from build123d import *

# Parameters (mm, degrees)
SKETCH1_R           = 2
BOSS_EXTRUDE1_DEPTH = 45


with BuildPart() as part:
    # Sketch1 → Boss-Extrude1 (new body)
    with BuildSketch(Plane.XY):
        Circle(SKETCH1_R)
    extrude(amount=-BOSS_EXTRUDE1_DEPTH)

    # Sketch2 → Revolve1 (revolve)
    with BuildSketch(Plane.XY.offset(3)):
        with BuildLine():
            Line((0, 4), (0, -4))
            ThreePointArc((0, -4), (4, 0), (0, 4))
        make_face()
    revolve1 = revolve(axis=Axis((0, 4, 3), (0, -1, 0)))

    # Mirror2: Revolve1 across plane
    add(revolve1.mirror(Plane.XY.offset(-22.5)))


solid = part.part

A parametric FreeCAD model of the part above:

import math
import FreeCAD as App
import Part
import Sketcher

V = App.Vector

doc = App.newDocument("Part")
body = doc.addObject("PartDesign::Body", "Body")

sketch1 = body.newObject("Sketcher::SketchObject", "Sketch")
sketch1.AttachmentSupport = (doc.getObject("XY_Plane"), [""])
sketch1.MapMode = "FlatFace"
sketch1.addGeometry(Part.Circle(V(0, 0, 0), V(0, 0, 1), 2), False)
sketch1.addConstraint([
    Sketcher.Constraint("Coincident", 0, 3, -1, 1),
    Sketcher.Constraint("Diameter", 0, 4.0),
])
pad1 = body.newObject("PartDesign::Pad", "Pad")
pad1.Profile = sketch1
pad1.Length = 45
pad1.Reversed = True

sketch2 = body.newObject("Sketcher::SketchObject", "Sketch001")
sketch2.AttachmentSupport = (doc.getObject("XY_Plane"), [""])
sketch2.MapMode = "FlatFace"
sketch2.AttachmentOffset = App.Placement(V(0, 0, 3), App.Rotation())
sketch2.addGeometry([
    Part.LineSegment(V(0, 4, 0), V(0, -4, 0)),
    Part.ArcOfCircle(Part.Circle(V(0, 0, 0), V(0, 0, 1), 4), math.radians(-90), math.radians(90)),
], False)
sketch2.addConstraint([
    Sketcher.Constraint("Coincident", 0, 1, 1, 2),
    Sketcher.Constraint("Coincident", 1, 1, 0, 2),
    Sketcher.Constraint("Vertical", 0),
    Sketcher.Constraint("Coincident", 1, 3, -1, 1),
    Sketcher.Constraint("PointOnObject", 0, 1, -2),
    Sketcher.Constraint("Radius", 1, 4.0),
])
revolution = body.newObject("PartDesign::Revolution", "Revolution")
revolution.Profile = sketch2
revolution.ReferenceAxis = (sketch2, ["V_Axis"])
revolution.Angle = 360
doc.recompute()

datumplane = body.newObject("PartDesign::Plane", "DatumPlane")
datumplane.AttachmentSupport = (doc.getObject("XY_Plane"), [""])
datumplane.MapMode = "FlatFace"
datumplane.AttachmentOffset = App.Placement(V(0, 0, -22.5), App.Rotation())
mirrored = body.newObject("PartDesign::Mirrored", "Mirrored")
mirrored.Originals = [revolution]
mirrored.MirrorPlane = (datumplane, [""])
body.Tip = mirrored

doc.recompute()
